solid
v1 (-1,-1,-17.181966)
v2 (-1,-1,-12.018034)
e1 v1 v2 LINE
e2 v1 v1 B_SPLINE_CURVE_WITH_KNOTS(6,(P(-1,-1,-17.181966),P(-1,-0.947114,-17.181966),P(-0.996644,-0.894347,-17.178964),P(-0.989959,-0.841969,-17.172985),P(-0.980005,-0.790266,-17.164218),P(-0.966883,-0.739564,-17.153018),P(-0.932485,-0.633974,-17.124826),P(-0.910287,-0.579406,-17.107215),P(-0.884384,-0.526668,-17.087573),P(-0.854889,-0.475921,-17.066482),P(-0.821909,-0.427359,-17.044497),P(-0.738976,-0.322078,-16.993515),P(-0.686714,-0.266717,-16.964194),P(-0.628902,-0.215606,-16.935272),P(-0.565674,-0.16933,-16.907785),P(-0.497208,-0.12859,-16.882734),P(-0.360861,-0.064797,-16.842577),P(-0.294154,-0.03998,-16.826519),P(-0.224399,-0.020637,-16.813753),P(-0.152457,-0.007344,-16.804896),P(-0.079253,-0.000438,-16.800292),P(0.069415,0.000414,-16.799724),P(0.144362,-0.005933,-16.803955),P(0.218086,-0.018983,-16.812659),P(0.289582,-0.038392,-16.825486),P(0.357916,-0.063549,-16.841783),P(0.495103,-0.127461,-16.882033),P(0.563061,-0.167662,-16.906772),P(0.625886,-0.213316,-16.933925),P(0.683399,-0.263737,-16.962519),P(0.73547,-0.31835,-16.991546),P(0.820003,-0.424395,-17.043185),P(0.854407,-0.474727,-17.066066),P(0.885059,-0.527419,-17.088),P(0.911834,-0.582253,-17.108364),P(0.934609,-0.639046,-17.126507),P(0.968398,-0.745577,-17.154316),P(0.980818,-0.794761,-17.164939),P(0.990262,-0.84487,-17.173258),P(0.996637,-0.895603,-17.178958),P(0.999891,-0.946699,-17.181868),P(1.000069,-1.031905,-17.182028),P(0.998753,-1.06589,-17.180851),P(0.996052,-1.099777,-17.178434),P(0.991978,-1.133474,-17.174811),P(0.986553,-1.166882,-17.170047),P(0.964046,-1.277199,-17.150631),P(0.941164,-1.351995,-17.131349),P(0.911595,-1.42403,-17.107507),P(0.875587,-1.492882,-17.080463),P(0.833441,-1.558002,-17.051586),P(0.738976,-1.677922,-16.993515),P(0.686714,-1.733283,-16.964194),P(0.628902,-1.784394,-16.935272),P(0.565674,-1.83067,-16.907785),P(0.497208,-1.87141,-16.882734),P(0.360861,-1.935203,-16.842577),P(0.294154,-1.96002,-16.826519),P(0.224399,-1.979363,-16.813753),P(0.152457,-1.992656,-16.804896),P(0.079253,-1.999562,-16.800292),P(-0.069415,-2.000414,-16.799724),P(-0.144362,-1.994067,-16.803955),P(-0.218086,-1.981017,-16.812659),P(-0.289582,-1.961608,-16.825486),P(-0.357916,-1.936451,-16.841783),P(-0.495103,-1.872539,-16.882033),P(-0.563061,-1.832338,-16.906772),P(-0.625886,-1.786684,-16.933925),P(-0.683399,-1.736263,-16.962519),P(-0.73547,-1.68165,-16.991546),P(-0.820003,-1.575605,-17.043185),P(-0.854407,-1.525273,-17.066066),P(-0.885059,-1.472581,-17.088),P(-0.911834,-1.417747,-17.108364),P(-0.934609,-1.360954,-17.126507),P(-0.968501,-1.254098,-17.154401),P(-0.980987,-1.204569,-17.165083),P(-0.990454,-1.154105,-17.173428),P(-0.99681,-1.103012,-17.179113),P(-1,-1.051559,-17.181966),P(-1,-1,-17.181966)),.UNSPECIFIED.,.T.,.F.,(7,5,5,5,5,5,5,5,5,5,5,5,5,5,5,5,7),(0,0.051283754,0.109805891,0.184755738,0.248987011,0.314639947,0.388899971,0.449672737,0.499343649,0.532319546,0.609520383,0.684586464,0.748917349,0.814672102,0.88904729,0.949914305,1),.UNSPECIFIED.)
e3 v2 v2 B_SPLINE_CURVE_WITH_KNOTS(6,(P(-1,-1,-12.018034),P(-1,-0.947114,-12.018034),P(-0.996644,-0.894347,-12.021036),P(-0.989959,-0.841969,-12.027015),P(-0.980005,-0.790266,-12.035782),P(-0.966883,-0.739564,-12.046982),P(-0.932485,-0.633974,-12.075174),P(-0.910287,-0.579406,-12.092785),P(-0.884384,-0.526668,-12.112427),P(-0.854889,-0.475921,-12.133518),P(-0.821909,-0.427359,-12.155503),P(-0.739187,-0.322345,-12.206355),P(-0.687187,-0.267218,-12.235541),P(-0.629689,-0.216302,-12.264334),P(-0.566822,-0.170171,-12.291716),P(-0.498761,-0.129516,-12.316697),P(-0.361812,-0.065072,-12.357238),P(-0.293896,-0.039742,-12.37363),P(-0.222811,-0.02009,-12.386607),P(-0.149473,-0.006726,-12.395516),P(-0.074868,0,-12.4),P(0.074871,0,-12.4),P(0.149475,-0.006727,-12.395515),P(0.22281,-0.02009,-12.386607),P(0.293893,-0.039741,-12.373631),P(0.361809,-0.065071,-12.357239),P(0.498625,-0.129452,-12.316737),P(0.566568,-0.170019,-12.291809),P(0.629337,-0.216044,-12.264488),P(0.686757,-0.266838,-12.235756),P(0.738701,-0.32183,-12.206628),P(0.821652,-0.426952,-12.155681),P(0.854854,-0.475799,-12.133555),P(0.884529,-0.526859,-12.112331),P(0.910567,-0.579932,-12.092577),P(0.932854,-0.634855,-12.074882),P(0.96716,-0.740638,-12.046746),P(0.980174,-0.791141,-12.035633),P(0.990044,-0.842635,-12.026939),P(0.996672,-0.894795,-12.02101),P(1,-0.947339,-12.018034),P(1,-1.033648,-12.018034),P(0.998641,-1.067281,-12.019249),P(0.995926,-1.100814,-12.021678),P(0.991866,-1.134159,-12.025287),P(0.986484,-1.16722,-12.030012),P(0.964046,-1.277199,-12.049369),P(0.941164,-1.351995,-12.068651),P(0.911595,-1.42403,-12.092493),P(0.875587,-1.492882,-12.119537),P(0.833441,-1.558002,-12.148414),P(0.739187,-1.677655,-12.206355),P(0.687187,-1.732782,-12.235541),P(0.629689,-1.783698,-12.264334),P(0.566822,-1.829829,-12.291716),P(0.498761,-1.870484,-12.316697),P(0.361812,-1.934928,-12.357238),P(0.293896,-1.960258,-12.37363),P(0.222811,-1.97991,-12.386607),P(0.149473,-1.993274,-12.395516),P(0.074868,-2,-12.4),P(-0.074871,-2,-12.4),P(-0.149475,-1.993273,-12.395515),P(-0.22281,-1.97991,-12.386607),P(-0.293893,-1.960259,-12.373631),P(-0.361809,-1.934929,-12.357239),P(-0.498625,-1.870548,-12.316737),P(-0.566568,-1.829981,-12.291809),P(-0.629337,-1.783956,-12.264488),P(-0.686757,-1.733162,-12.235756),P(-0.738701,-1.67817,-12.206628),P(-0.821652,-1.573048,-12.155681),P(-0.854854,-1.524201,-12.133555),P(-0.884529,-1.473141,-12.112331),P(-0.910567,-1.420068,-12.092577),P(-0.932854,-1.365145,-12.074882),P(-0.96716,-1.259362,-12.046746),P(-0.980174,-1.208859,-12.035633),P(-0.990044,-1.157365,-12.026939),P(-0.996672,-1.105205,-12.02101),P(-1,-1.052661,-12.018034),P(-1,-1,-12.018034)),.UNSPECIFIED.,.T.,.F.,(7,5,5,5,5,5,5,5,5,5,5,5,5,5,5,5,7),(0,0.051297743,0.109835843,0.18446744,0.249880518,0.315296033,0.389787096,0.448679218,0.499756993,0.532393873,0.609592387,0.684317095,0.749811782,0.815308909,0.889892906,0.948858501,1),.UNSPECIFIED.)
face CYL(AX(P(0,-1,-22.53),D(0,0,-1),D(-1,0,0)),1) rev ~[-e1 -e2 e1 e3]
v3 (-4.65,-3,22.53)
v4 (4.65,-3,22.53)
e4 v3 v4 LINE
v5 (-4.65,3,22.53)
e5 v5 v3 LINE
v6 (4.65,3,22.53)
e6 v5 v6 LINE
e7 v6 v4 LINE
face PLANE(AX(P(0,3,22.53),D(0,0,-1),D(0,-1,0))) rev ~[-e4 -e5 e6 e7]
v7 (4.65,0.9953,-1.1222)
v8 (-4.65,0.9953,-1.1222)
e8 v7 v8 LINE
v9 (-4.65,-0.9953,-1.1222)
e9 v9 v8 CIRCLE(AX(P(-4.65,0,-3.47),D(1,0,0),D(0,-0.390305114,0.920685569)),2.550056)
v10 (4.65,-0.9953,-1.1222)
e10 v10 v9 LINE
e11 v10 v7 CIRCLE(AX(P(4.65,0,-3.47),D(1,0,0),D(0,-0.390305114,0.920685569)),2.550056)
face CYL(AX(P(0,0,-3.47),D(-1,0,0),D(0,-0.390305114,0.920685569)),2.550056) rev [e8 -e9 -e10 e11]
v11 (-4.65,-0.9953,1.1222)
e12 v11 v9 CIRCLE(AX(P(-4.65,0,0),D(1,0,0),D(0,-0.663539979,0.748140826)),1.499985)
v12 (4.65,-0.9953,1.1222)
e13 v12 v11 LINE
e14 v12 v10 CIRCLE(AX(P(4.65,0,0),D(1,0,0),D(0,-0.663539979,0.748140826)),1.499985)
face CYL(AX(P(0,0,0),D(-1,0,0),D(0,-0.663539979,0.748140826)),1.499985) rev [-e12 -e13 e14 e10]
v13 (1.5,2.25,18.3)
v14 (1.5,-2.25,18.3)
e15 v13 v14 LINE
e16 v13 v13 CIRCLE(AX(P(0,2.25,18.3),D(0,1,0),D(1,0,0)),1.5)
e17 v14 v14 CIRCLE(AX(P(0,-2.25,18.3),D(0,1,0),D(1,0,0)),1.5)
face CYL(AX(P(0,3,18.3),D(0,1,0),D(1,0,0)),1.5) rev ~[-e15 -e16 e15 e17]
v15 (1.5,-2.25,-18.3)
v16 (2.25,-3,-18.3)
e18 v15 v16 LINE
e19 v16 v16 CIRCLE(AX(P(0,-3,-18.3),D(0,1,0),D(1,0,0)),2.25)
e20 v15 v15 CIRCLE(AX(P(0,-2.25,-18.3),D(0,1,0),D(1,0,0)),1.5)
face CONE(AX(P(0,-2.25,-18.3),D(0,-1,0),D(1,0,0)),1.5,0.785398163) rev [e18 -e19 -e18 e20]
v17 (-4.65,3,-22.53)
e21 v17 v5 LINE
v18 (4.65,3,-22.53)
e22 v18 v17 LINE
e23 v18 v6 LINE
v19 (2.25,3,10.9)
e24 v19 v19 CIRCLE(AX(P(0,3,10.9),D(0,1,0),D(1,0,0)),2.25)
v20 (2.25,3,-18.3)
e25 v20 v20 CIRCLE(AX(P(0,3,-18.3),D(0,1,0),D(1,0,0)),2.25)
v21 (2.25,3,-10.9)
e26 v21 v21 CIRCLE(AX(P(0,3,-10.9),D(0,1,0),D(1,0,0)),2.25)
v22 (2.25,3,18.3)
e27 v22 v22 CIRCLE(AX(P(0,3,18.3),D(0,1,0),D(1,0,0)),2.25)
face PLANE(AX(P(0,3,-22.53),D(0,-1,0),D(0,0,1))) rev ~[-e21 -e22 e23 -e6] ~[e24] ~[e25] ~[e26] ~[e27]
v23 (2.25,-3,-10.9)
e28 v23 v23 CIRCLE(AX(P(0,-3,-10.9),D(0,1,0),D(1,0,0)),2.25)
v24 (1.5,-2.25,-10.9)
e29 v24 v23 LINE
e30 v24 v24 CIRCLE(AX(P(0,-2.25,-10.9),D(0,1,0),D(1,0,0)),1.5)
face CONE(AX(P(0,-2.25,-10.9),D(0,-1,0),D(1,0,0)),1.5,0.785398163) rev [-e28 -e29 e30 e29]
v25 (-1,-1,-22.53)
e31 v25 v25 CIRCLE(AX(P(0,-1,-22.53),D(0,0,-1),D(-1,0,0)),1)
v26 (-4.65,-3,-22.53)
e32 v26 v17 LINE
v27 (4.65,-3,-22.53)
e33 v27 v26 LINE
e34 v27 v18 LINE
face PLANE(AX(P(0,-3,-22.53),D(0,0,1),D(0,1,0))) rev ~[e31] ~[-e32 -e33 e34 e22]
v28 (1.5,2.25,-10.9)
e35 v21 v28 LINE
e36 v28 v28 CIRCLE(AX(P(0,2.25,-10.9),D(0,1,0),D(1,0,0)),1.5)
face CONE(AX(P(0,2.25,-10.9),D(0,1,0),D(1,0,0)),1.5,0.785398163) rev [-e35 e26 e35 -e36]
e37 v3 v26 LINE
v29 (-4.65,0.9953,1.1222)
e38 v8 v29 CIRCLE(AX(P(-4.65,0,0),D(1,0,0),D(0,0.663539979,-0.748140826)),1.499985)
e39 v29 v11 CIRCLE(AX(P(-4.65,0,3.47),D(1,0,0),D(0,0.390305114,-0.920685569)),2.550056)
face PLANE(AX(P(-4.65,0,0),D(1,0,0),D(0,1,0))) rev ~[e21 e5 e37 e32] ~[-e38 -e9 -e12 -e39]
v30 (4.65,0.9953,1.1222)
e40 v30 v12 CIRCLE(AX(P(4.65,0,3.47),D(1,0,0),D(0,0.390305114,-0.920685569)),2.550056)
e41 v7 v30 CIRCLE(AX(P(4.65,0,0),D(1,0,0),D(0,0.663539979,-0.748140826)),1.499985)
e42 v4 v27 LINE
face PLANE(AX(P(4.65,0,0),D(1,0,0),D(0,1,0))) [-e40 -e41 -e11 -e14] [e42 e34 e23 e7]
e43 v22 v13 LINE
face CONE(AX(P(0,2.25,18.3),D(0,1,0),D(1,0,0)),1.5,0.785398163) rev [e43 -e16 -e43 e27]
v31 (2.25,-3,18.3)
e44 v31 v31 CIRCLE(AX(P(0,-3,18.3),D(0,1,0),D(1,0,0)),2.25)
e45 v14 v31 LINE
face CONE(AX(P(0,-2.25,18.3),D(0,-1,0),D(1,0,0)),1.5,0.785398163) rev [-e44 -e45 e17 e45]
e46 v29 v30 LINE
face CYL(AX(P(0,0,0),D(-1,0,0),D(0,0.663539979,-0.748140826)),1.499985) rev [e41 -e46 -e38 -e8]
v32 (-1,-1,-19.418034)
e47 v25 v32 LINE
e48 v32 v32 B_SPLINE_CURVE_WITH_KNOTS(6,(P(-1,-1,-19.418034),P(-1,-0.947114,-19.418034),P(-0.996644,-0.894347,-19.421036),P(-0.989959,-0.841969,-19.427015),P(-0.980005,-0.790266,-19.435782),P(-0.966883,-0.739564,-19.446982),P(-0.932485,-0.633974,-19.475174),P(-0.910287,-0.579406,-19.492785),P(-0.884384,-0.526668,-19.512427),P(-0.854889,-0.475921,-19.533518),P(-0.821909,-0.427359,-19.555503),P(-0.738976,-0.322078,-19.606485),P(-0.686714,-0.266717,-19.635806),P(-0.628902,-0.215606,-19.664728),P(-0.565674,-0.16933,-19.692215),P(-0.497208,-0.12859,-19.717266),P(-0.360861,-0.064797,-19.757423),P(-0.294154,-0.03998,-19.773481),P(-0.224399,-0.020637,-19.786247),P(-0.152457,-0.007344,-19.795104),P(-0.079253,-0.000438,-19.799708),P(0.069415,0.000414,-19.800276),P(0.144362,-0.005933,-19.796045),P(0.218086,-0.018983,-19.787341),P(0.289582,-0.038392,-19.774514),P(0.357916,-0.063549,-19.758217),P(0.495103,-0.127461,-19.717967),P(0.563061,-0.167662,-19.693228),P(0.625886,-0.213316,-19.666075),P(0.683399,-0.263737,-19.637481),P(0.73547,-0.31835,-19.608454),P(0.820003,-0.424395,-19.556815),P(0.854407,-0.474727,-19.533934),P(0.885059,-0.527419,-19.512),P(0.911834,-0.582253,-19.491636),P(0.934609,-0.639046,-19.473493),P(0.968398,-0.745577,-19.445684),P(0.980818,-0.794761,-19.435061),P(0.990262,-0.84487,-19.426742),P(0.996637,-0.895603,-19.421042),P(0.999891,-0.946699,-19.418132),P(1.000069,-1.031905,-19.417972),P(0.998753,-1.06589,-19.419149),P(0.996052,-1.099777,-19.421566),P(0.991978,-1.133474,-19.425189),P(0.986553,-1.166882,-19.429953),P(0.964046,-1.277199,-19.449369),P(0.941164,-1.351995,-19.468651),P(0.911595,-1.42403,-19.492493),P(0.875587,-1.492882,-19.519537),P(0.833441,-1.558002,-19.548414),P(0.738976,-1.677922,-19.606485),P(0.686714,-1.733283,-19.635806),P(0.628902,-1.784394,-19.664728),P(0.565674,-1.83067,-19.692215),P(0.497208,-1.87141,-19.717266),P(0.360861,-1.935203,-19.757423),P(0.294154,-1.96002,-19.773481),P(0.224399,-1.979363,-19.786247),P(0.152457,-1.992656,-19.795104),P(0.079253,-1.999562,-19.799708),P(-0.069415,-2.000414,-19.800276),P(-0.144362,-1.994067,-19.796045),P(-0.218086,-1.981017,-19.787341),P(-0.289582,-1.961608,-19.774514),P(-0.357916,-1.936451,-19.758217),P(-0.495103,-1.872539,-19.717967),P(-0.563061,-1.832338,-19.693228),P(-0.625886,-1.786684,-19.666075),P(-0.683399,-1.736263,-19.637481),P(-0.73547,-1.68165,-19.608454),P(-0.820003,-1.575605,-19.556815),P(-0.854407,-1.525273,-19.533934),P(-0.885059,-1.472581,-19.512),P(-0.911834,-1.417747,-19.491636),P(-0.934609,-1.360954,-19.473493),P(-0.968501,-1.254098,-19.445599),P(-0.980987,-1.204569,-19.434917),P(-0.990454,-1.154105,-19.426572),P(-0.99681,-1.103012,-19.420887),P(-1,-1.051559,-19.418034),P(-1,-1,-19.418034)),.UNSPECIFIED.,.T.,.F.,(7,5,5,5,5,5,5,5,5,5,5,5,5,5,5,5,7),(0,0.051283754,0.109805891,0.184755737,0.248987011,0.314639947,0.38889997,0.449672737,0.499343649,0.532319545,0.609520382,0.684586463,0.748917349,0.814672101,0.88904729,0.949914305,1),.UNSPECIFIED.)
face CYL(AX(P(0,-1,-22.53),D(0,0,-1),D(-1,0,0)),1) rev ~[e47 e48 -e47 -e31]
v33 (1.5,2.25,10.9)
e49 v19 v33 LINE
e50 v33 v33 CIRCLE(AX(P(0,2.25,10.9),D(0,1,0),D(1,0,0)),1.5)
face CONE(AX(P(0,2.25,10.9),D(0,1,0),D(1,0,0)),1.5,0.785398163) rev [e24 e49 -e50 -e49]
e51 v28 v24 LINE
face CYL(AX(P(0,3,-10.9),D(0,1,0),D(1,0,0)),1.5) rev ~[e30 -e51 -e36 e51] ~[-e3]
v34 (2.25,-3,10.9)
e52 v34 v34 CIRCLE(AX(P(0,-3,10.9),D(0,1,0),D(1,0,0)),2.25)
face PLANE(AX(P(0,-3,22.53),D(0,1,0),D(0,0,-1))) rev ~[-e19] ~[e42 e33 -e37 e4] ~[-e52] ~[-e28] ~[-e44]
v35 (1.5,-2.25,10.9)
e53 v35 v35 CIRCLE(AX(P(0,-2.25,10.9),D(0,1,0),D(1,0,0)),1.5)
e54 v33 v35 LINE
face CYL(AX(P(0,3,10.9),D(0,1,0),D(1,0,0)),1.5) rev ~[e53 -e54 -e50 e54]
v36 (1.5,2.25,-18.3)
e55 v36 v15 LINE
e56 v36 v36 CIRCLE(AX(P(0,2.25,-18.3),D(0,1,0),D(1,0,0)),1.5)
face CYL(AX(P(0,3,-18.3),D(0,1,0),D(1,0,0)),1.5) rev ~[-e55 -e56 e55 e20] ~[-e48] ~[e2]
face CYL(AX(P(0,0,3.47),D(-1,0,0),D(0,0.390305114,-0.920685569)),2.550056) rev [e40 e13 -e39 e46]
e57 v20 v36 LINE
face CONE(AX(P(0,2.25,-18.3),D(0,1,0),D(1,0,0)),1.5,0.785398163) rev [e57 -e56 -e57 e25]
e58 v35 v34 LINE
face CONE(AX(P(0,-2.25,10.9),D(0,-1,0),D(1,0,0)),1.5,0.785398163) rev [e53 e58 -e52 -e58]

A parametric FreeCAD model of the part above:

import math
import FreeCAD as App
import Part
import Sketcher

V = App.Vector


def edges_at(feature, points):
    """Names of the edges that pass closest to the given points."""
    edges = feature.Shape.Edges
    near = lambda p: min(range(len(edges)), key=lambda i: edges[i].distToShape(Part.Vertex(*p))[0])
    return sorted({f"Edge{near(p) + 1}" for p in points})


def add_polygon(sketch, points):
    """Adds a closed chain of lines whose ends are joined by coincident constraints."""
    first, n = sketch.GeometryCount, len(points)
    for a, b in zip(points, points[1:] + points[:1]):
        sketch.addGeometry(Part.LineSegment(App.Vector(*a, 0), App.Vector(*b, 0)), False)
    for i in range(n):
        sketch.addConstraint(Sketcher.Constraint("Coincident", first + i, 2, first + (i + 1) % n, 1))

doc = App.newDocument("Part")
body = doc.addObject("PartDesign::Body", "Body")

# Sketch on YZ plane
sketch1 = body.newObject("Sketcher::SketchObject", "Sketch")
sketch1.AttachmentSupport = (doc.getObject("YZ_Plane"), [""])
sketch1.MapMode = "FlatFace"
add_polygon(sketch1, [(3, -22.5), (3, 22.5), (-3, 22.5), (-3, -22.5)])  # lines 0-3
sketch1.addGeometry(Part.ArcOfCircle(Part.Circle(V(0, 3.5, 0), V(0, 0, 1), 2.6), math.radians(-67), math.radians(247)), False)  # 4
sketch1.addGeometry(Part.ArcOfCircle(Part.Circle(V(0, 0, 0), V(0, 0, 1), 1.5), math.radians(-48), math.radians(48)), False)  # 5
sketch1.addGeometry(Part.ArcOfCircle(Part.Circle(V(0, -3.5, 0), V(0, 0, 1), 2.6), math.radians(113), math.radians(427)), False)  # 6
sketch1.addGeometry(Part.ArcOfCircle(Part.Circle(V(0, 0, 0), V(0, 0, 1), 1.5), math.radians(132), math.radians(228)), False)  # 7
sketch1.addConstraint([
    Sketcher.Constraint("Coincident", 4, 1, 5, 2),
    Sketcher.Constraint("Coincident", 5, 1, 6, 2),
    Sketcher.Constraint("Coincident", 6, 1, 7, 2),
    Sketcher.Constraint("Coincident", 7, 1, 4, 2),
    Sketcher.Constraint("Vertical", 0),
    Sketcher.Constraint("Horizontal", 1),
    Sketcher.Constraint("Vertical", 2),
    Sketcher.Constraint("Horizontal", 3),
    Sketcher.Constraint("Coincident", 5, 3, -1, 1),
    Sketcher.Constraint("Coincident", 7, 3, -1, 1),
    Sketcher.Constraint("Equal", 4, 6),
    Sketcher.Constraint("Equal", 5, 7),
    Sketcher.Constraint("Symmetric", 4, 3, 6, 3, -1, 1),
    Sketcher.Constraint("Symmetric", 0, 2, 2, 2, -1, 1),
    Sketcher.Constraint("PointOnObject", 4, 3, -2),
    Sketcher.Constraint("Radius", 5, 1.5),
    Sketcher.Constraint("DistanceX", 1, 2, 1, 1, 6.0),
    Sketcher.Constraint("Radius", 4, 2.55),
    Sketcher.Constraint("DistanceY", 0, 1, 0, 2, 45.06),
    Sketcher.Constraint("DistanceY", 6, 3, 0, 2, 26.0),
])
pad1 = body.newObject("PartDesign::Pad", "Pad")
pad1.Profile = sketch1
pad1.Length = 9.3
pad1.Midplane = True

# Sketch on XZ plane
sketch2 = body.newObject("Sketcher::SketchObject", "Sketch001")
sketch2.AttachmentSupport = (doc.getObject("XZ_Plane"), [""])
sketch2.MapMode = "FlatFace"
sketch2.AttachmentOffset = App.Placement(V(0, 0, -3), App.Rotation())
sketch2.addGeometry([
    Part.Circle(V(0, 18.3, 0), V(0, 0, 1), 1.5),
    Part.Circle(V(0, 10.9, 0), V(0, 0, 1), 1.5),
    Part.Circle(V(0, -18.3, 0), V(0, 0, 1), 1.5),
    Part.Circle(V(0, -10.9, 0), V(0, 0, 1), 1.5),
], False)
sketch2.addConstraint([
    Sketcher.Constraint("Equal", 0, 1),
    Sketcher.Constraint("Equal", 1, 2),
    Sketcher.Constraint("Equal", 2, 3),
    Sketcher.Constraint("Symmetric", 0, 3, 2, 3, -1, 1),
    Sketcher.Constraint("Symmetric", 1, 3, 3, 3, -1, 1),
    Sketcher.Constraint("PointOnObject", 0, 3, -2),
    Sketcher.Constraint("PointOnObject", 1, 3, -2),
    Sketcher.Constraint("Diameter", 0, 3.0),
    Sketcher.Constraint("DistanceY", 1, 3, 0, 3, 7.4),
    Sketcher.Constraint("DistanceY", 3, 3, 1, 3, 21.8),
])
pocket1 = body.newObject("PartDesign::Pocket", "Pocket")
pocket1.Profile = sketch2
pocket1.Length = 6
pocket1.Reversed = True
doc.recompute()

chamfer = body.newObject("PartDesign::Chamfer", "Chamfer")
chamfer.Base = (pocket1, edges_at(pocket1, [
    (-1.5, 3, 18.3),
    (-1.5, 3, 10.9),
    (-1.5, 3, -10.9),
    (-1.5, 3, -18.3),
    (-1.5, -3, 18.3),
    (-1.5, -3, 10.9),
    (-1.5, -3, -10.9),
    (-1.5, -3, -18.3),
]))
chamfer.Size = 0.75

# Sketch on XY plane
sketch3 = body.newObject("Sketcher::SketchObject", "Sketch002")
sketch3.AttachmentSupport = (doc.getObject("XY_Plane"), [""])
sketch3.MapMode = "FlatFace"
sketch3.AttachmentOffset = App.Placement(V(0, 0, -22.53), App.Rotation())
sketch3.addGeometry(Part.Circle(V(0, -1, 0), V(0, 0, 1), 1), False)
sketch3.addConstraint([
    Sketcher.Constraint("PointOnObject", 0, 3, -2),
    Sketcher.Constraint("Diameter", 0, 2.0),
    Sketcher.Constraint("DistanceY", 0, 3, -1, 1, 1.0),
])
pocket2 = body.newObject("PartDesign::Pocket", "Pocket001")
pocket2.Profile = sketch3
pocket2.Length = 11.5
pocket2.Reversed = True

doc.recompute()
